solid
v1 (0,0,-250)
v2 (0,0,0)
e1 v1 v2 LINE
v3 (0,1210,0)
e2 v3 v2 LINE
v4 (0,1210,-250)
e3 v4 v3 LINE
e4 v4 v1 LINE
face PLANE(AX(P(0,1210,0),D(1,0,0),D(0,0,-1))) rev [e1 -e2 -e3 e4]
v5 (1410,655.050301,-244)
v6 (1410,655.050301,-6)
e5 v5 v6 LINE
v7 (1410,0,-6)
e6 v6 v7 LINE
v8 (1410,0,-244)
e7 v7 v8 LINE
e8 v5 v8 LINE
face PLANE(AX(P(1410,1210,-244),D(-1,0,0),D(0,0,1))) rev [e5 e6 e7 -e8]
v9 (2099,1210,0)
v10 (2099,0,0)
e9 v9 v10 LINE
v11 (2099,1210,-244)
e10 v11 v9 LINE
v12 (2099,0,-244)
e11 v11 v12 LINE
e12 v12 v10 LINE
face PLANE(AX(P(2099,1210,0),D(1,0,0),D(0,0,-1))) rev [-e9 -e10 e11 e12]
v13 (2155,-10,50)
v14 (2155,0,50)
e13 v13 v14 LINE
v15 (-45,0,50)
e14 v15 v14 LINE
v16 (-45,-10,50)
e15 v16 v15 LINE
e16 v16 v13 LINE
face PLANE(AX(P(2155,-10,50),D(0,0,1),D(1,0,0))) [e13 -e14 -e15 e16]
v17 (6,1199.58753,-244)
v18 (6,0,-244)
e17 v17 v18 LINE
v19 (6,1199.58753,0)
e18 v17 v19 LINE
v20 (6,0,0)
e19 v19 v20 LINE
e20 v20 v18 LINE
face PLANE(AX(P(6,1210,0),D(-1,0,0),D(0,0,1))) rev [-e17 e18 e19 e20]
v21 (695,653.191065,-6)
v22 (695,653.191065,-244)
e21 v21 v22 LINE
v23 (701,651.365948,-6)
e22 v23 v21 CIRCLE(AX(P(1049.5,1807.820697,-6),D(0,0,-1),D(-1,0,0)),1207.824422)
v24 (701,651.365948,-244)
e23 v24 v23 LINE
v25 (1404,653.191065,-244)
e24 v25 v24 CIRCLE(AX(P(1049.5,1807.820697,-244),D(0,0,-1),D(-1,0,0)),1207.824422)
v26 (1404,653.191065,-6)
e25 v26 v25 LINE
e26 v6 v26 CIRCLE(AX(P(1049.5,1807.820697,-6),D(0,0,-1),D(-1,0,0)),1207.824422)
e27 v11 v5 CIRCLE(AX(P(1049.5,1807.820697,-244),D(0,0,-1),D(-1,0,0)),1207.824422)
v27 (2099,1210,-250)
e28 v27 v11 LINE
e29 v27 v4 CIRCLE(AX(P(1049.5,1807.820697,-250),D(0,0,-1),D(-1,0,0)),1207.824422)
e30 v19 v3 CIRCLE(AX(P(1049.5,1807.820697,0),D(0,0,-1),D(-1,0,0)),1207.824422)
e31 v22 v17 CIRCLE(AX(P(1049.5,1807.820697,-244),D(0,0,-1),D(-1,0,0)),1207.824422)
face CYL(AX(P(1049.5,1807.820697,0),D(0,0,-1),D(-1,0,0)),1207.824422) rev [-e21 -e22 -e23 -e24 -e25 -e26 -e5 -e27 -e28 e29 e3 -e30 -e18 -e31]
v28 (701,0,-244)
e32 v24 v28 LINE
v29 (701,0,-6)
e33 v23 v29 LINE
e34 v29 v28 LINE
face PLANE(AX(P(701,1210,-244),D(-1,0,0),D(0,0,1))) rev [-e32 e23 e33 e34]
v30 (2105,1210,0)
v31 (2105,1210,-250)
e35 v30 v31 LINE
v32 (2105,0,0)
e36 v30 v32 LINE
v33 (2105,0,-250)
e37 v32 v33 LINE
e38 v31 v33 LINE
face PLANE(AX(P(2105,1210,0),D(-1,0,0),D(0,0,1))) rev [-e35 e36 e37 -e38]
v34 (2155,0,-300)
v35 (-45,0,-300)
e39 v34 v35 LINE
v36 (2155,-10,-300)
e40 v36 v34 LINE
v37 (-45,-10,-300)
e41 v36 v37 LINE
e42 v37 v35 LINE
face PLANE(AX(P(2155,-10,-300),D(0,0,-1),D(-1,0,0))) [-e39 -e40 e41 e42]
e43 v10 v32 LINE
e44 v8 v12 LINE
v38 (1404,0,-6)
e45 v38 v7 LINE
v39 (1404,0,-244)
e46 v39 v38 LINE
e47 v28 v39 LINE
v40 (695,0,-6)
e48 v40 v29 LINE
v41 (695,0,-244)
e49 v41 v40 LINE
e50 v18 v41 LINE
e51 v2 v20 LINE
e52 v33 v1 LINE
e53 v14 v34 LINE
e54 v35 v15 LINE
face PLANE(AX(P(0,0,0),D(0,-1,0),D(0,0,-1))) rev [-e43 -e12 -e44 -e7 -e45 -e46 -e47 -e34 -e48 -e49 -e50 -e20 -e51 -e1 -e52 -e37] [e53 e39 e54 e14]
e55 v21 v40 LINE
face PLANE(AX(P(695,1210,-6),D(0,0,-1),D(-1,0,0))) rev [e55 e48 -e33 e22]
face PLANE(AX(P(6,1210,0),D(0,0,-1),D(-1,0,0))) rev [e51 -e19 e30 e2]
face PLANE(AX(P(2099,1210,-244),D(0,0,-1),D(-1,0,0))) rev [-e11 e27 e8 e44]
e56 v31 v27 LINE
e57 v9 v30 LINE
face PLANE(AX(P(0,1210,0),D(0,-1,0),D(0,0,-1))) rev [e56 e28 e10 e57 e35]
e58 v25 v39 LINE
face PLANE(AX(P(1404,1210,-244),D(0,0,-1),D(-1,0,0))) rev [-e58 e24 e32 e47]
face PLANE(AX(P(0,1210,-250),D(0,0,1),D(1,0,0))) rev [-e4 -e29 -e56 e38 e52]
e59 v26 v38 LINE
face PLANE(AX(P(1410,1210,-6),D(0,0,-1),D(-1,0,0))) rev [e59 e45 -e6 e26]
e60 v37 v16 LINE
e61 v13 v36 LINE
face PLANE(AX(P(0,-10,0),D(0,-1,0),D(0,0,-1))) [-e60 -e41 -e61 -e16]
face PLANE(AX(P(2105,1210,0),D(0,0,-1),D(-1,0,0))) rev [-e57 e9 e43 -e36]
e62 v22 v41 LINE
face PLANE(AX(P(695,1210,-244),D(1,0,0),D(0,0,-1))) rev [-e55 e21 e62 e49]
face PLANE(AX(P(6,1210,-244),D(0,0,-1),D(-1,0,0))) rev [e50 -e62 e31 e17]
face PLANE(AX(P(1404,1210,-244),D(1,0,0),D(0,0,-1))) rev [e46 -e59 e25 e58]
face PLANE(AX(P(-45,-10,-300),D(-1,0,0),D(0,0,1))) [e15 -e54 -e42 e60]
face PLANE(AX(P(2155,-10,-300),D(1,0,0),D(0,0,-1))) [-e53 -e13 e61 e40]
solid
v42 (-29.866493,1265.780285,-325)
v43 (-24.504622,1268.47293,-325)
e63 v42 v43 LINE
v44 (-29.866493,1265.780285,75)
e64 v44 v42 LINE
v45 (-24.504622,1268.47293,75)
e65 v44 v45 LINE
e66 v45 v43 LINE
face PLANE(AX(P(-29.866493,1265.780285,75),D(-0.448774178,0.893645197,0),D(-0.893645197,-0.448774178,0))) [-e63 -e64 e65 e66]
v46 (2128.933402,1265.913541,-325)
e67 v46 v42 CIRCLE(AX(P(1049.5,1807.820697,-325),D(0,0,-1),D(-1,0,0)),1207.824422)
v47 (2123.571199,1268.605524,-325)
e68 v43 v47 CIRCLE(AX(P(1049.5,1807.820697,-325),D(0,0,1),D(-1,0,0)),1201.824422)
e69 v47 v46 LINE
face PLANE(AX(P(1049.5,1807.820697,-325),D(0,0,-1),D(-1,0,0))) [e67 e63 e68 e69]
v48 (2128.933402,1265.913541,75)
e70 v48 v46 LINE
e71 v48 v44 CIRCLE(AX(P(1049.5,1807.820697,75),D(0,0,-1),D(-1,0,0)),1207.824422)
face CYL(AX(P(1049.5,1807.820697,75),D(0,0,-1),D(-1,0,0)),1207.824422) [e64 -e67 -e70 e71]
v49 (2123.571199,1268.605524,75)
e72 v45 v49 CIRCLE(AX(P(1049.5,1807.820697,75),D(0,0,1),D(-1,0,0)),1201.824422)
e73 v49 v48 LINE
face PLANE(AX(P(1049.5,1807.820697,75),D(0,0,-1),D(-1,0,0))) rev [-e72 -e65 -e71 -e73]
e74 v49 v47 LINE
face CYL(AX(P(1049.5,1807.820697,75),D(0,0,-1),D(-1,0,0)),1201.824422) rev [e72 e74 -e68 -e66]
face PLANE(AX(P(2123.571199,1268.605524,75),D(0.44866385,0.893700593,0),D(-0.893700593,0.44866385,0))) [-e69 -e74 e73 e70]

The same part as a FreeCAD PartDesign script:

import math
import FreeCAD as App
import Part
import Sketcher
Q = App.Units.Quantity

doc = App.newDocument("Part")
body = doc.addObject("PartDesign::Body", "Body")

# Sketch on XZ plane
sketch1 = body.newObject("Sketcher::SketchObject", "Sketch")
sketch1.AttachmentSupport = (doc.getObject("XZ_Plane"), [""])
sketch1.MapMode = "FlatFace"
sketch1.addGeometry([
    Part.LineSegment(App.Vector(0, -250, 0), App.Vector(0, 0, 0)),  # 0
    Part.LineSegment(App.Vector(0, 0, 0), App.Vector(6, 0, 0)),  # 1
    Part.LineSegment(App.Vector(6, 0, 0), App.Vector(6, -244, 0)),  # 2
    Part.LineSegment(App.Vector(6, -244, 0), App.Vector(695, -244, 0)),  # 3
    Part.LineSegment(App.Vector(695, -244, 0), App.Vector(695, -6, 0)),  # 4
    Part.LineSegment(App.Vector(695, -6, 0), App.Vector(701, -6, 0)),  # 5
    Part.LineSegment(App.Vector(701, -6, 0), App.Vector(701, -244, 0)),  # 6
    Part.LineSegment(App.Vector(701, -244, 0), App.Vector(1404, -244, 0)),  # 7
    Part.LineSegment(App.Vector(1404, -244, 0), App.Vector(1404, -6, 0)),  # 8
    Part.LineSegment(App.Vector(1404, -6, 0), App.Vector(1410, -6, 0)),  # 9
    Part.LineSegment(App.Vector(1410, -6, 0), App.Vector(1410, -244, 0)),  # 10
    Part.LineSegment(App.Vector(1410, -244, 0), App.Vector(2099, -244, 0)),  # 11
    Part.LineSegment(App.Vector(2099, -244, 0), App.Vector(2099, 0, 0)),  # 12
    Part.LineSegment(App.Vector(2099, 0, 0), App.Vector(2105, 0, 0)),  # 13
    Part.LineSegment(App.Vector(2105, 0, 0), App.Vector(2105, -250, 0)),  # 14
    Part.LineSegment(App.Vector(2105, -250, 0), App.Vector(0, -250, 0)),  # 15
], False)
sketch1.addConstraint([
    Sketcher.Constraint("Coincident", 0, 2, 1, 1),
    Sketcher.Constraint("Coincident", 1, 2, 2, 1),
    Sketcher.Constraint("Coincident", 2, 2, 3, 1),
    Sketcher.Constraint("Coincident", 3, 2, 4, 1),
    Sketcher.Constraint("Coincident", 4, 2, 5, 1),
    Sketcher.Constraint("Coincident", 5, 2, 6, 1),
    Sketcher.Constraint("Coincident", 6, 2, 7, 1),
    Sketcher.Constraint("Coincident", 7, 2, 8, 1),
    Sketcher.Constraint("Coincident", 8, 2, 9, 1),
    Sketcher.Constraint("Coincident", 9, 2, 10, 1),
    Sketcher.Constraint("Coincident", 10, 2, 11, 1),
    Sketcher.Constraint("Coincident", 11, 2, 12, 1),
    Sketcher.Constraint("Coincident", 12, 2, 13, 1),
    Sketcher.Constraint("Coincident", 13, 2, 14, 1),
    Sketcher.Constraint("Coincident", 14, 2, 15, 1),
    Sketcher.Constraint("Coincident", 15, 2, 0, 1),
    Sketcher.Constraint("Vertical", 0),
    Sketcher.Constraint("Horizontal", 1),
    Sketcher.Constraint("Vertical", 2),
    Sketcher.Constraint("Horizontal", 3),
    Sketcher.Constraint("Vertical", 4),
    Sketcher.Constraint("Horizontal", 5),
    Sketcher.Constraint("Vertical", 6),
    Sketcher.Constraint("Horizontal", 7),
    Sketcher.Constraint("Vertical", 8),
    Sketcher.Constraint("Horizontal", 9),
    Sketcher.Constraint("Vertical", 10),
    Sketcher.Constraint("Horizontal", 11),
    Sketcher.Constraint("Vertical", 12),
    Sketcher.Constraint("Horizontal", 13),
    Sketcher.Constraint("Vertical", 14),
    Sketcher.Constraint("Horizontal", 15),
    Sketcher.Constraint("Coincident", 0, 2, -1, 1),
    Sketcher.Constraint("PointOnObject", 12, 2, -1),
    Sketcher.Constraint("Horizontal", 3, 2, 6, 2),
    Sketcher.Constraint("Horizontal", 5, 2, 8, 2),
    Sketcher.Constraint("Horizontal", 7, 2, 10, 2),
    Sketcher.Constraint("Equal", 1, 5),
    Sketcher.Constraint("Equal", 5, 9),
    Sketcher.Constraint("Equal", 3, 11),
    Sketcher.Constraint("Equal", 9, 13),
    Sketcher.Constraint("DistanceX", 1, 1, 1, 2, 6.0),
    Sketcher.Constraint("DistanceX", 3, 1, 3, 2, 689.0),
    Sketcher.Constraint("DistanceX", 7, 1, 7, 2, 703.0),
    Sketcher.Constraint("DistanceY", 0, 1, 0, 2, 250.0),
    Sketcher.Constraint("DistanceY", 2, 2, 2, 1, 244.0),
    Sketcher.Constraint("DistanceY", 4, 1, 4, 2, 238.0),
])
pad1 = body.newObject("PartDesign::Pad", "Pad")
pad1.Profile = sketch1
pad1.Length = 1210
pad1.Reversed = True

# Sketch on XY plane
sketch2 = body.newObject("Sketcher::SketchObject", "Sketch001")
sketch2.AttachmentSupport = (doc.getObject("XY_Plane"), [""])
sketch2.MapMode = "FlatFace"
sketch2.AttachmentOffset = App.Placement(App.Vector(0, 0, -250), App.Rotation())
sketch2.addGeometry([
    Part.LineSegment(App.Vector(0, 1210, 0), App.Vector(2099, 1210, 0)),
    Part.ArcOfCircle(Part.Circle(App.Vector(1049.5, 1807.820697, 0), App.Vector(0, 0, 1), 1207.824422), math.radians(-150.33311), math.radians(-29.66689)),
], False)
sketch2.addConstraint([
    Sketcher.Constraint("Coincident", 0, 1, 1, 1),
    Sketcher.Constraint("Coincident", 1, 2, 0, 2),
    Sketcher.Constraint("Horizontal", 0),
    Sketcher.Constraint("PointOnObject", 0, 1, -2),
    Sketcher.Constraint("DistanceX", 0, 1, 0, 2, 2099.0),
    Sketcher.Constraint("DistanceY", -1, 1, 0, 1, 1210.0),
    Sketcher.Constraint("Radius", 1, 1207.824422),
])
pocket1 = body.newObject("PartDesign::Pocket", "Pocket")
pocket1.Profile = sketch2
pocket1.Type = "ThroughAll"
pocket1.Reversed = True

# Sketch on XZ plane
sketch3 = body.newObject("Sketcher::SketchObject", "Sketch002")
sketch3.AttachmentSupport = (doc.getObject("XZ_Plane"), [""])
sketch3.MapMode = "FlatFace"
sketch3.addGeometry([
    Part.LineSegment(App.Vector(-45, -300, 0), App.Vector(-45, 50, 0)),
    Part.LineSegment(App.Vector(-45, 50, 0), App.Vector(2155, 50, 0)),
    Part.LineSegment(App.Vector(2155, 50, 0), App.Vector(2155, -300, 0)),
    Part.LineSegment(App.Vector(2155, -300, 0), App.Vector(-45, -300, 0)),
], False)
sketch3.addConstraint([
    Sketcher.Constraint("Coincident", 0, 2, 1, 1),
    Sketcher.Constraint("Coincident", 1, 2, 2, 1),
    Sketcher.Constraint("Coincident", 2, 2, 3, 1),
    Sketcher.Constraint("Coincident", 3, 2, 0, 1),
    Sketcher.Constraint("Vertical", 0),
    Sketcher.Constraint("Horizontal", 1),
    Sketcher.Constraint("Vertical", 2),
    Sketcher.Constraint("Horizontal", 3),
    Sketcher.Constraint("DistanceX", 1, 1, 1, 2, 2200.0),
    Sketcher.Constraint("DistanceY", 0, 1, 0, 2, 350.0),
    Sketcher.Constraint("DistanceX", 0, 2, -1, 1, 45.0),
    Sketcher.Constraint("DistanceY", -1, 1, 0, 2, 50.0),
])
pad2 = body.newObject("PartDesign::Pad", "Pad001")
pad2.Profile = sketch3
pad2.Length = 10
body2 = doc.addObject("PartDesign::Body", "Body001")

# Sketch on XY plane
sketch4 = body2.newObject("Sketcher::SketchObject", "Sketch003")
sketch4.AttachmentSupport = (doc.getObject("XY_Plane001"), [""])
sketch4.MapMode = "FlatFace"
sketch4.AttachmentOffset = App.Placement(App.Vector(0, 0, -325), App.Rotation())
sketch4.addGeometry([
    Part.LineSegment(App.Vector(-29.866493, 1265.780285, 0), App.Vector(-24.504622, 1268.47293, 0)),
    Part.ArcOfCircle(Part.Circle(App.Vector(1049.5, 1807.820697, 0), App.Vector(0, 0, 1), 1201.824422), math.radians(-153.334936), math.radians(-26.65799)),
    Part.LineSegment(App.Vector(2123.571199, 1268.605524, 0), App.Vector(2128.933402, 1265.913541, 0)),
    Part.ArcOfCircle(Part.Circle(App.Vector(1049.5, 1807.820697, 0), App.Vector(0, 0, 1), 1207.824422), math.radians(-153.334936), math.radians(-26.65799)),
], False)
sketch4.addConstraint([
    Sketcher.Constraint("Coincident", 0, 2, 1, 1),
    Sketcher.Constraint("Coincident", 1, 2, 2, 1),
    Sketcher.Constraint("Coincident", 2, 2, 3, 2),
    Sketcher.Constraint("Coincident", 3, 1, 0, 1),
    Sketcher.Constraint("Coincident", 3, 3, 1, 3),
    Sketcher.Constraint("Distance", 0, 6.0),
    Sketcher.Constraint("DistanceX", -1, 1, 1, 3, 1049.5),
    Sketcher.Constraint("Radius", 1, 1201.824422),
    Sketcher.Constraint("DistanceY", -1, 1, 0, 2, 1268.47293),
    Sketcher.Constraint("DistanceY", -1, 1, 2, 2, 1265.913541),
    Sketcher.Constraint("DistanceY", -1, 1, 1, 3, 1807.820697),
    Sketcher.Constraint("Angle", 0, Q("26.665064 deg")),
    Sketcher.Constraint("Angle", 2, Q("-26.65799 deg")),
])
pad3 = body2.newObject("PartDesign::Pad", "Pad002")
pad3.Profile = sketch4
pad3.Length = 400

doc.recompute()
